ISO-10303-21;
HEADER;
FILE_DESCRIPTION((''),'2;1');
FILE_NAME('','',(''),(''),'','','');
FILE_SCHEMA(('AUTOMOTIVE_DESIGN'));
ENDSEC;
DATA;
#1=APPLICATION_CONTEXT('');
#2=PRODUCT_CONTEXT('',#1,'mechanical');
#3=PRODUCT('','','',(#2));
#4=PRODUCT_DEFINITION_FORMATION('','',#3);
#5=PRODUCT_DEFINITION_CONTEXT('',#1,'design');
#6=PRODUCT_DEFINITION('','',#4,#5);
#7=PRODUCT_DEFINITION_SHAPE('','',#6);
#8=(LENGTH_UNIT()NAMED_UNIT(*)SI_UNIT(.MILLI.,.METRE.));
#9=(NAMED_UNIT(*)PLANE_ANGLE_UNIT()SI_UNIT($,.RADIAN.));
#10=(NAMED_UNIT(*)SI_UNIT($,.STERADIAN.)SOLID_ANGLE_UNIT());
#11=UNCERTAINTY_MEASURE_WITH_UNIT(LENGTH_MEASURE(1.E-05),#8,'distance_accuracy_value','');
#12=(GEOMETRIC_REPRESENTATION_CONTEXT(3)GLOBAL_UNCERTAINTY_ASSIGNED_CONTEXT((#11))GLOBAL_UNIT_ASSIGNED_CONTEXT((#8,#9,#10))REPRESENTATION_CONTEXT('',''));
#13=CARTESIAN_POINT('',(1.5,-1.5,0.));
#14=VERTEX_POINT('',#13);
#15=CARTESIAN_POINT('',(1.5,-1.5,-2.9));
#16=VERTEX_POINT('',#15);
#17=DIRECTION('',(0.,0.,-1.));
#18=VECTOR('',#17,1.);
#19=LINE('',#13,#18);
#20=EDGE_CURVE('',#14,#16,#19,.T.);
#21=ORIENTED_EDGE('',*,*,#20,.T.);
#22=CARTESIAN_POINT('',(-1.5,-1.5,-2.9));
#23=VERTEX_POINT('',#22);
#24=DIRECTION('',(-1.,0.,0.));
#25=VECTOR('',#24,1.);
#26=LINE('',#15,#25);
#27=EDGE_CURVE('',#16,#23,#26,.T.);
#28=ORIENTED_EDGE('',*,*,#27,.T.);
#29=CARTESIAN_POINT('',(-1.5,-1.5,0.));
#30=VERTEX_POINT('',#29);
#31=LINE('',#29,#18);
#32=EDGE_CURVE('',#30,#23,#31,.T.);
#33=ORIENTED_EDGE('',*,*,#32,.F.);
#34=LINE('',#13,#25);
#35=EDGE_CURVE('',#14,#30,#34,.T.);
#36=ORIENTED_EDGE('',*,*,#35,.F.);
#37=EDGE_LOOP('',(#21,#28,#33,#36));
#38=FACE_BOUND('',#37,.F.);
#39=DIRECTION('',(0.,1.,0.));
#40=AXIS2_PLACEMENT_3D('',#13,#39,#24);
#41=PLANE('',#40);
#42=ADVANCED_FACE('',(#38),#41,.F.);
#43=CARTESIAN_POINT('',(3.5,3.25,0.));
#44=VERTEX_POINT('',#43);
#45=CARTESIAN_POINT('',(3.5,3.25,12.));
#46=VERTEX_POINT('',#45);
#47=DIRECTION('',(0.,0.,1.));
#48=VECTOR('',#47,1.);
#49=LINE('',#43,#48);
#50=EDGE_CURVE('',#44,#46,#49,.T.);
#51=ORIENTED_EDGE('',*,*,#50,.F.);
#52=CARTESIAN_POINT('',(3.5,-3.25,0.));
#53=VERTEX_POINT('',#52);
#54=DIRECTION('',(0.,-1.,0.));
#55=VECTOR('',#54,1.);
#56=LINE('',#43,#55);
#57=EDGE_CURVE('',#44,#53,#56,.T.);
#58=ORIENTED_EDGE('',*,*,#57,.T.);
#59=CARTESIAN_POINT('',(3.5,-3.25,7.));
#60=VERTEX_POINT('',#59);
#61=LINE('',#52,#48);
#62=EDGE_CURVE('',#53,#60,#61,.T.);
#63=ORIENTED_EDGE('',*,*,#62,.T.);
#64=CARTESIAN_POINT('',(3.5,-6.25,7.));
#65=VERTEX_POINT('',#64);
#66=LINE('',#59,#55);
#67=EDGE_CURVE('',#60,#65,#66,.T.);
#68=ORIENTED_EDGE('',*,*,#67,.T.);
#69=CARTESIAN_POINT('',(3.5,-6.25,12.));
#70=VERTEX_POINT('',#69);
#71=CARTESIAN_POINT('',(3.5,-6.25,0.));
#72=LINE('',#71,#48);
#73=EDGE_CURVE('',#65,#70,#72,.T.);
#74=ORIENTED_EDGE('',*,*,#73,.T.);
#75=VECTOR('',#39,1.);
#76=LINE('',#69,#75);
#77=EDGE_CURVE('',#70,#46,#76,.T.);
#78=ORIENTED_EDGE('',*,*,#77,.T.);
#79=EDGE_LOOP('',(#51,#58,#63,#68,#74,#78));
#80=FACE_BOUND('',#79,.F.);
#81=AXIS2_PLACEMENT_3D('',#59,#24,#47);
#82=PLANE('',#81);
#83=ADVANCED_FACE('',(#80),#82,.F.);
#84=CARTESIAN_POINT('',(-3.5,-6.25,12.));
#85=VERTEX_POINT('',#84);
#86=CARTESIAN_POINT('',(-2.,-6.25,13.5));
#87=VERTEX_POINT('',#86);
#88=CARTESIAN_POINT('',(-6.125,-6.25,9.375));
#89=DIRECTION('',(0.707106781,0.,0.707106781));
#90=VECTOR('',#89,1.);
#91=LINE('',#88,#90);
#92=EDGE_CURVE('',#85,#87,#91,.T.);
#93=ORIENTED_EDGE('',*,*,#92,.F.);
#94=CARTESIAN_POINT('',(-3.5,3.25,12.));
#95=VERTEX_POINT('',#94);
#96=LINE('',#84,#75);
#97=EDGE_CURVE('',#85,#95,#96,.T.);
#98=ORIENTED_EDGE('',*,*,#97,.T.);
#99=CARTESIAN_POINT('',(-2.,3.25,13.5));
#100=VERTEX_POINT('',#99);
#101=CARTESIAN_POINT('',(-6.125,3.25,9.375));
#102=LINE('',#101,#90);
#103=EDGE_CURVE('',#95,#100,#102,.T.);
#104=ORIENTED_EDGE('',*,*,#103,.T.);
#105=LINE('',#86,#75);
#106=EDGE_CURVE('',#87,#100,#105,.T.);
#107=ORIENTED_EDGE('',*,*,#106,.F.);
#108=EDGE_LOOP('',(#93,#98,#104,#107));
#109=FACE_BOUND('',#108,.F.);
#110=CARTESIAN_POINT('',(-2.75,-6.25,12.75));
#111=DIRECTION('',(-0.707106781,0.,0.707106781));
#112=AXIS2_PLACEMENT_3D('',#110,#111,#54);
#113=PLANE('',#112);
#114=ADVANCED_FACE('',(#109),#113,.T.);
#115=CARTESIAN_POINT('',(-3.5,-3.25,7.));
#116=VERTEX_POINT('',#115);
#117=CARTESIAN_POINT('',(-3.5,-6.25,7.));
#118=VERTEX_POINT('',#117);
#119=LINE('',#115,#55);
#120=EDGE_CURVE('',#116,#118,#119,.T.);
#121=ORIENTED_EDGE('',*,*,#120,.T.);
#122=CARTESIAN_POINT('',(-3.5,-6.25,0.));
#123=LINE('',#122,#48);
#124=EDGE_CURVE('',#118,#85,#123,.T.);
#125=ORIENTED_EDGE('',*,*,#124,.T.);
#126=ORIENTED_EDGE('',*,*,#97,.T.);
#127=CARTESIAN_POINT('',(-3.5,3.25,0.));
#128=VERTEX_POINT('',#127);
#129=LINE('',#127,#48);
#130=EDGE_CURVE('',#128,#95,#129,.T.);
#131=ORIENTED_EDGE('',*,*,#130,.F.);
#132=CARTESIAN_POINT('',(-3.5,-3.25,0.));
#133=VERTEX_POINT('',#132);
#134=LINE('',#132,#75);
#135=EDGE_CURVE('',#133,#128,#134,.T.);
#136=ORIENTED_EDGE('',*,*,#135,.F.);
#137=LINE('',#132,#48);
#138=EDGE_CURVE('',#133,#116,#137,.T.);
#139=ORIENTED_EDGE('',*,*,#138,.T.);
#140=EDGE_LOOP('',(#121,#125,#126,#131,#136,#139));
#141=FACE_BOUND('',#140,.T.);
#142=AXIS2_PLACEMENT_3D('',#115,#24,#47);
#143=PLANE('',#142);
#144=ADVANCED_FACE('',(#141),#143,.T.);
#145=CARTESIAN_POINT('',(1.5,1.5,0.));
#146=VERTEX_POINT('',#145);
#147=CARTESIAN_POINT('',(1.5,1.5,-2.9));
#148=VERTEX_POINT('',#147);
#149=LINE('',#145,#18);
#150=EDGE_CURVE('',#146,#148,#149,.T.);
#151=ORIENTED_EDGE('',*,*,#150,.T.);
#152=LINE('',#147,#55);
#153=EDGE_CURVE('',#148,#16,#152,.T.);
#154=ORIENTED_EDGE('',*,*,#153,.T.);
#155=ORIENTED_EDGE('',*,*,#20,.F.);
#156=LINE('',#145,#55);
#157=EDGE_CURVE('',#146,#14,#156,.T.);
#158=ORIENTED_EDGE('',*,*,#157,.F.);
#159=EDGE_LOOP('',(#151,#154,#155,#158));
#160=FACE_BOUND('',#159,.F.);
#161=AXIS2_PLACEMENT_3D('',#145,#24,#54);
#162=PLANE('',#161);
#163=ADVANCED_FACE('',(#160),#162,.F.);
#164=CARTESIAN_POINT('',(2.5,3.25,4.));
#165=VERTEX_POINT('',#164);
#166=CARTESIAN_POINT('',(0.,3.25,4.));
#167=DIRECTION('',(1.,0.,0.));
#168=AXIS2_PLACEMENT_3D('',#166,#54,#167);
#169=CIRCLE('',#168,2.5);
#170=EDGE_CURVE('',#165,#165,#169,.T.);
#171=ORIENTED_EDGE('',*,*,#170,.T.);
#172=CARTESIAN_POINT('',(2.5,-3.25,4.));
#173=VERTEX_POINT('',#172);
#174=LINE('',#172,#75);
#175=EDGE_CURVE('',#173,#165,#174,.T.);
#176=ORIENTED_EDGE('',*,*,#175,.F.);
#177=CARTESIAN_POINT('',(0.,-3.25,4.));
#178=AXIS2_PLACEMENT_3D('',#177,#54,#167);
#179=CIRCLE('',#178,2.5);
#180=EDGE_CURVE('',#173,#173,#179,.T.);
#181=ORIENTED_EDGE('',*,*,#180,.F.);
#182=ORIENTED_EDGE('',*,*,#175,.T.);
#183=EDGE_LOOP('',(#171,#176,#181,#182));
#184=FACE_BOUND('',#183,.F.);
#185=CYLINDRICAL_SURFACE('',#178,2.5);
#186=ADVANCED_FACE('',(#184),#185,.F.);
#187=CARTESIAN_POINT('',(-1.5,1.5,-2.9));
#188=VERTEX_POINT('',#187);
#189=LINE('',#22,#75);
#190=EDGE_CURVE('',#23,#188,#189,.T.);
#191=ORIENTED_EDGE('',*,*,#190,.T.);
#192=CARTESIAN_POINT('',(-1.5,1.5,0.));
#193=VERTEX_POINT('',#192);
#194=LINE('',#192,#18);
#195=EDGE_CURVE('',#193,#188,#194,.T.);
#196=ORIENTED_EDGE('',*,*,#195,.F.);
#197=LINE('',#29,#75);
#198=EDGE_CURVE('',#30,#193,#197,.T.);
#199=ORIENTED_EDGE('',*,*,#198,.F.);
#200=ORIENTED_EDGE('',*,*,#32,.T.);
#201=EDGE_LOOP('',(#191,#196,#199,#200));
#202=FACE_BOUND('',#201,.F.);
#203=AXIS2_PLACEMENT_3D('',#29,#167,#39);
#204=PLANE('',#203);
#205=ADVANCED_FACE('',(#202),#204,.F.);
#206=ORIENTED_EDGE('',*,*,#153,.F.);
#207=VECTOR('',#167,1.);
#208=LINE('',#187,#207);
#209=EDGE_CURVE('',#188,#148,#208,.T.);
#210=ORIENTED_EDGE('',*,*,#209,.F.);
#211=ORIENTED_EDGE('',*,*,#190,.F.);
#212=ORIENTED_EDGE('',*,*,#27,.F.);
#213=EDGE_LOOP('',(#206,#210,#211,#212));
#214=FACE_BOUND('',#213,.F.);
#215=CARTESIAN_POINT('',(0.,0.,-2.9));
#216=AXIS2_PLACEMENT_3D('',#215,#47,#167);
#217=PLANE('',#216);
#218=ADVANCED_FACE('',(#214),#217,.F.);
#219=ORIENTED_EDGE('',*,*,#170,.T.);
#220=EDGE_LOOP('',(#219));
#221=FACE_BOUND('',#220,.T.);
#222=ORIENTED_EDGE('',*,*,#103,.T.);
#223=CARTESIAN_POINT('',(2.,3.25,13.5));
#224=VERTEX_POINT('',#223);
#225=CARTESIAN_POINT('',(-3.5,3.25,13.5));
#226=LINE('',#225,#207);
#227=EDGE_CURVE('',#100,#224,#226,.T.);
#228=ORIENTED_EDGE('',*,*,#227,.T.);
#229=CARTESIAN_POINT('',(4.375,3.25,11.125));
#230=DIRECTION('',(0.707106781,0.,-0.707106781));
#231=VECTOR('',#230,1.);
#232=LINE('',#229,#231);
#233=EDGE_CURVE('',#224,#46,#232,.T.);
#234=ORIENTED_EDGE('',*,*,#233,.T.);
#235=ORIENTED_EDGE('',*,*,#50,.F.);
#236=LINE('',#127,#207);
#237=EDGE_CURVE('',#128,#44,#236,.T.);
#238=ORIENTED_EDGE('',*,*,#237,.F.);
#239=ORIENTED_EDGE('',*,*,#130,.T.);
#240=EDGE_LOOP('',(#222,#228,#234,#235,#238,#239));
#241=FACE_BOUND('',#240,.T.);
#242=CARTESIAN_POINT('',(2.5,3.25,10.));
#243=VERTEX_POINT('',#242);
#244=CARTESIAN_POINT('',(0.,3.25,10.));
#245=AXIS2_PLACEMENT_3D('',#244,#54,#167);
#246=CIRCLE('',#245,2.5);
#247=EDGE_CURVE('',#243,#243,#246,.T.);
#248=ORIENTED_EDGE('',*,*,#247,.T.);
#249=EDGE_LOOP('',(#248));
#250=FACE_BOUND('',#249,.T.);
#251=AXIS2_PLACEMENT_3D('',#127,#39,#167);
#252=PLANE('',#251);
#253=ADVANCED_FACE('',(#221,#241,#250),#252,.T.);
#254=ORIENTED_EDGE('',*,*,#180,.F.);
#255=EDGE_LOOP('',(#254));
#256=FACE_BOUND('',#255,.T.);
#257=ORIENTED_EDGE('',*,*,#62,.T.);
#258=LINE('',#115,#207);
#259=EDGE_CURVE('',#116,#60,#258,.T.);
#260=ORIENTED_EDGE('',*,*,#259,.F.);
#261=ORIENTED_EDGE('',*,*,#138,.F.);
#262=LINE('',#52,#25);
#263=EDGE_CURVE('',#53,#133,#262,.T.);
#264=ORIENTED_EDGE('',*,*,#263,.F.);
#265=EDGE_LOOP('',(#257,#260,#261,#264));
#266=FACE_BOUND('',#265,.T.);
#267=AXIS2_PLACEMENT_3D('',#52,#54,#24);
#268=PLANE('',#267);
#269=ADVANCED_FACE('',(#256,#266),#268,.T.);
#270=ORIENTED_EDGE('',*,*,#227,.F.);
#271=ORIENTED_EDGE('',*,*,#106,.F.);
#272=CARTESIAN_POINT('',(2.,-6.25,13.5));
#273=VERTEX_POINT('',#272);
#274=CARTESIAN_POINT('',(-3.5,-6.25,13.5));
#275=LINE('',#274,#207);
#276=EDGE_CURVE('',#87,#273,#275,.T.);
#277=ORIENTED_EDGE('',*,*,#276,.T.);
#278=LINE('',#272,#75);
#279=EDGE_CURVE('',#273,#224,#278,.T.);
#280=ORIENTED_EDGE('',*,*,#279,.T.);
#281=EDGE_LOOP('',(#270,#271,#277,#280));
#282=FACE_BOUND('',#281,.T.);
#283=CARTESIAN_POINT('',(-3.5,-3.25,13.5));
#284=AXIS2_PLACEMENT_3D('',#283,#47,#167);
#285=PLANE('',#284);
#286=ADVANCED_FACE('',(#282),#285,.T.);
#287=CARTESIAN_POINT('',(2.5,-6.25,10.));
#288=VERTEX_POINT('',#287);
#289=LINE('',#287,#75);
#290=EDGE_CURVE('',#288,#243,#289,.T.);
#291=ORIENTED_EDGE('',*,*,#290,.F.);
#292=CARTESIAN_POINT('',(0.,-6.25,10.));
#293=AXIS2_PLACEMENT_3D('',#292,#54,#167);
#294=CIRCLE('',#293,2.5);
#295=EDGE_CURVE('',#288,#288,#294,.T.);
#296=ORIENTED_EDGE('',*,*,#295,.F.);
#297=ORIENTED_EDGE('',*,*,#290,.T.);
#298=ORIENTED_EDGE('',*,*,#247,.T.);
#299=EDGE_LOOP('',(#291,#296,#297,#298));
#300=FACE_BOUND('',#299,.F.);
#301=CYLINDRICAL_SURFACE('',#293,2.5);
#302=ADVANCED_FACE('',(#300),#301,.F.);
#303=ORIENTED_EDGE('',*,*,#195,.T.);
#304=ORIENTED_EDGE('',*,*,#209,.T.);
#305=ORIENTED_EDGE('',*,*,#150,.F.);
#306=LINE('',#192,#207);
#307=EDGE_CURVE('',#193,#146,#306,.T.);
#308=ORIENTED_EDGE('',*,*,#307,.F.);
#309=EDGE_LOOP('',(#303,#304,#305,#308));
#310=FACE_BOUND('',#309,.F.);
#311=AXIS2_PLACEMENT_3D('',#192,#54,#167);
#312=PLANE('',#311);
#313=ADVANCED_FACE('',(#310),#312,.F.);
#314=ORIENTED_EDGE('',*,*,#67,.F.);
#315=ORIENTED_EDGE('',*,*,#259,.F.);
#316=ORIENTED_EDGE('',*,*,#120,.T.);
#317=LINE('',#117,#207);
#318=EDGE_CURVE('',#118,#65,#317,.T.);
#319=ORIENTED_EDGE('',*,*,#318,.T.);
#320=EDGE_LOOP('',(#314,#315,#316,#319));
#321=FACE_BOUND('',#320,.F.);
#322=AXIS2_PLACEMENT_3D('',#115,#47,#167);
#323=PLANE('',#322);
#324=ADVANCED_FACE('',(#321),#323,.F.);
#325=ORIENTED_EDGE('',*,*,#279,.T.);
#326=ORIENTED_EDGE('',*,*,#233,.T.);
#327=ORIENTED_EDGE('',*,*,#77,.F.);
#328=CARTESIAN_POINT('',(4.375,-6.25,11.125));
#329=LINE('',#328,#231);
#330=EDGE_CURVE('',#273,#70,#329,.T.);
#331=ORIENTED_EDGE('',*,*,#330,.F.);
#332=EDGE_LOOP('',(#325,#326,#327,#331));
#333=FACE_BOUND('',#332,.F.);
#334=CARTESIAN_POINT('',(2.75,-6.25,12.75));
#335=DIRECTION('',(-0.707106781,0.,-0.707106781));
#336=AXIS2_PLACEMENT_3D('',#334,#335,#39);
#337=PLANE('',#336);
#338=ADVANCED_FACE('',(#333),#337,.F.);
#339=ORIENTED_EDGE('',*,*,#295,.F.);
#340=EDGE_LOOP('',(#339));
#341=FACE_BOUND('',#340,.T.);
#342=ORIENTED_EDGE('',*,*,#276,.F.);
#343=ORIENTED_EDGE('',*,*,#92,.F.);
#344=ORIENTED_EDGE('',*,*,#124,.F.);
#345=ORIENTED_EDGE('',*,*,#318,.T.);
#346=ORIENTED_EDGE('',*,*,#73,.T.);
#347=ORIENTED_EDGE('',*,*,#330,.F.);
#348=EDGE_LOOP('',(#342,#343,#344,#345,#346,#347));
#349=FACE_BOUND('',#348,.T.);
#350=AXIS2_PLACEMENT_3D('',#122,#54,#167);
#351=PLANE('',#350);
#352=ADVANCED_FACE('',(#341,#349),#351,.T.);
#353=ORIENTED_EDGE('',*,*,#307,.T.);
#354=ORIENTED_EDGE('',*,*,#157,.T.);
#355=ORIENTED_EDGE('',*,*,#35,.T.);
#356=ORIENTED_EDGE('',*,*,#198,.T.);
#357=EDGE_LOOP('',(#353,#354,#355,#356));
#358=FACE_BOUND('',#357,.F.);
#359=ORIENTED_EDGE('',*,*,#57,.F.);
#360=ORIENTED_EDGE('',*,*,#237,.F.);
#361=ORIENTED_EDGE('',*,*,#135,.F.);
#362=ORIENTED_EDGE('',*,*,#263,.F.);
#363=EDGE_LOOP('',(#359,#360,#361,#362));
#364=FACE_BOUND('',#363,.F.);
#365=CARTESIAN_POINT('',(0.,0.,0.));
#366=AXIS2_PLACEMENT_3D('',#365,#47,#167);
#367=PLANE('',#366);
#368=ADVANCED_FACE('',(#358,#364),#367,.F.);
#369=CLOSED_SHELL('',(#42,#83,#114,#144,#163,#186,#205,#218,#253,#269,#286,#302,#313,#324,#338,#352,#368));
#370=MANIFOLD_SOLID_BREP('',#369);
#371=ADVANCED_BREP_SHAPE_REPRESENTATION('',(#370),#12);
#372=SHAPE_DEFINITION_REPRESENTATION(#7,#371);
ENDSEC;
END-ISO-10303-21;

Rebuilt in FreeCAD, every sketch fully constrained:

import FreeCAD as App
import Part
import Sketcher
Q = App.Units.Quantity


def edges_at(feature, points):
    """Names of the edges that pass closest to the given points."""
    edges = feature.Shape.Edges
    near = lambda p: min(range(len(edges)), key=lambda i: edges[i].distToShape(Part.Vertex(*p))[0])
    return sorted({f"Edge{near(p) + 1}" for p in points})


def add_polygon(sketch, points):
    """Adds a closed chain of lines whose ends are joined by coincident constraints."""
    first, n = sketch.GeometryCount, len(points)
    for a, b in zip(points, points[1:] + points[:1]):
        sketch.addGeometry(Part.LineSegment(App.Vector(*a, 0), App.Vector(*b, 0)), False)
    for i in range(n):
        sketch.addConstraint(Sketcher.Constraint("Coincident", first + i, 2, first + (i + 1) % n, 1))

doc = App.newDocument("Part")
body = doc.addObject("PartDesign::Body", "Body")

# Sketch on XY plane
sketch1 = body.newObject("Sketcher::SketchObject", "Sketch")
sketch1.AttachmentSupport = (doc.getObject("XY_Plane"), [""])
sketch1.MapMode = "FlatFace"
add_polygon(sketch1, [(4, 3), (-4, 3), (-4, -3), (4, -3)])  # lines 0-3
sketch1.addConstraint(Sketcher.Constraint("Horizontal", 0))
sketch1.addConstraint(Sketcher.Constraint("Vertical", 1))
sketch1.addConstraint(Sketcher.Constraint("Horizontal", 2))
sketch1.addConstraint(Sketcher.Constraint("Vertical", 3))
sketch1.addConstraint(Sketcher.Constraint("Symmetric", 0, 2, 2, 2, -1, 1))
sketch1.addConstraint(Sketcher.Constraint("DistanceX", 0, 2, 0, 1, Q("7 mm")))
sketch1.addConstraint(Sketcher.Constraint("DistanceY", 1, 2, 1, 1, Q("6.5 mm")))
pad1 = body.newObject("PartDesign::Pad", "Pad")
pad1.Profile = sketch1
pad1.Length = 13.5

# Sketch on XZ plane
sketch2 = body.newObject("Sketcher::SketchObject", "Sketch001")
sketch2.AttachmentSupport = (doc.getObject("XZ_Plane"), [""])
sketch2.MapMode = "FlatFace"
sketch2.AttachmentOffset = App.Placement(App.Vector(0, 0, 3.25), App.Rotation())
add_polygon(sketch2, [(-4, 14), (-4, 7), (4, 7), (4, 14)])  # lines 0-3
sketch2.addConstraint(Sketcher.Constraint("Vertical", 0))
sketch2.addConstraint(Sketcher.Constraint("Horizontal", 1))
sketch2.addConstraint(Sketcher.Constraint("Vertical", 2))
sketch2.addConstraint(Sketcher.Constraint("Horizontal", 3))
sketch2.addConstraint(Sketcher.Constraint("DistanceX", 1, 1, 1, 2, Q("7 mm")))
sketch2.addConstraint(Sketcher.Constraint("DistanceY", 0, 2, 0, 1, Q("6.5 mm")))
sketch2.addConstraint(Sketcher.Constraint("DistanceY", -1, 1, 0, 2, Q("7 mm")))
sketch2.addConstraint(Sketcher.Constraint("DistanceX", 0, 2, -1, 1, Q("3.5 mm")))
pad2 = body.newObject("PartDesign::Pad", "Pad001")
pad2.Profile = sketch2
pad2.Length = 3

# Sketch on XZ plane
sketch3 = body.newObject("Sketcher::SketchObject", "Sketch002")
sketch3.AttachmentSupport = (doc.getObject("XZ_Plane"), [""])
sketch3.MapMode = "FlatFace"
sketch3.AttachmentOffset = App.Placement(App.Vector(0, 0, 6.25), App.Rotation())
sketch3.addGeometry(Part.Circle(App.Vector(0, 10, 0), App.Vector(0, 0, 1), 2.5), False)
sketch3.addConstraint(Sketcher.Constraint("PointOnObject", 0, 3, -2))
sketch3.addConstraint(Sketcher.Constraint("Diameter", 0, Q("5 mm")))
sketch3.addConstraint(Sketcher.Constraint("DistanceY", -1, 1, 0, 3, Q("10 mm")))
pocket1 = body.newObject("PartDesign::Pocket", "Pocket")
pocket1.Profile = sketch3
pocket1.Length = 9.5

# Sketch on XZ plane
sketch4 = body.newObject("Sketcher::SketchObject", "Sketch003")
sketch4.AttachmentSupport = (doc.getObject("XZ_Plane"), [""])
sketch4.MapMode = "FlatFace"
sketch4.AttachmentOffset = App.Placement(App.Vector(0, 0, 3.25), App.Rotation())
sketch4.addGeometry(Part.Circle(App.Vector(0, 4, 0), App.Vector(0, 0, 1), 2.5), False)
sketch4.addConstraint(Sketcher.Constraint("PointOnObject", 0, 3, -2))
sketch4.addConstraint(Sketcher.Constraint("Diameter", 0, Q("5 mm")))
sketch4.addConstraint(Sketcher.Constraint("DistanceY", -1, 1, 0, 3, Q("4 mm")))
pocket2 = body.newObject("PartDesign::Pocket", "Pocket001")
pocket2.Profile = sketch4
pocket2.Length = 10

# Sketch on XY plane
sketch5 = body.newObject("Sketcher::SketchObject", "Sketch004")
sketch5.AttachmentSupport = (doc.getObject("XY_Plane"), [""])
sketch5.MapMode = "FlatFace"
add_polygon(sketch5, [(1.5, 1.5), (-1.5, 1.5), (-1.5, -1.5), (1.5, -1.5)])  # lines 0-3
sketch5.addConstraint(Sketcher.Constraint("Horizontal", 0))
sketch5.addConstraint(Sketcher.Constraint("Vertical", 1))
sketch5.addConstraint(Sketcher.Constraint("Horizontal", 2))
sketch5.addConstraint(Sketcher.Constraint("Vertical", 3))
sketch5.addConstraint(Sketcher.Constraint("Symmetric", 0, 2, 2, 2, -1, 1))
sketch5.addConstraint(Sketcher.Constraint("Equal", 2, 1))
sketch5.addConstraint(Sketcher.Constraint("DistanceX", 0, 2, 0, 1, Q("3 mm")))
pad3 = body.newObject("PartDesign::Pad", "Pad002")
pad3.Profile = sketch5
pad3.Length = 2.9
pad3.Reversed = True
doc.recompute()

chamfer = body.newObject("PartDesign::Chamfer", "Chamfer")
chamfer.Base = (pad3, edges_at(pad3, [(3.5, -1.5, 13.5), (-3.5, -1.5, 13.5)]))
chamfer.Size = 1.5

doc.recompute()
